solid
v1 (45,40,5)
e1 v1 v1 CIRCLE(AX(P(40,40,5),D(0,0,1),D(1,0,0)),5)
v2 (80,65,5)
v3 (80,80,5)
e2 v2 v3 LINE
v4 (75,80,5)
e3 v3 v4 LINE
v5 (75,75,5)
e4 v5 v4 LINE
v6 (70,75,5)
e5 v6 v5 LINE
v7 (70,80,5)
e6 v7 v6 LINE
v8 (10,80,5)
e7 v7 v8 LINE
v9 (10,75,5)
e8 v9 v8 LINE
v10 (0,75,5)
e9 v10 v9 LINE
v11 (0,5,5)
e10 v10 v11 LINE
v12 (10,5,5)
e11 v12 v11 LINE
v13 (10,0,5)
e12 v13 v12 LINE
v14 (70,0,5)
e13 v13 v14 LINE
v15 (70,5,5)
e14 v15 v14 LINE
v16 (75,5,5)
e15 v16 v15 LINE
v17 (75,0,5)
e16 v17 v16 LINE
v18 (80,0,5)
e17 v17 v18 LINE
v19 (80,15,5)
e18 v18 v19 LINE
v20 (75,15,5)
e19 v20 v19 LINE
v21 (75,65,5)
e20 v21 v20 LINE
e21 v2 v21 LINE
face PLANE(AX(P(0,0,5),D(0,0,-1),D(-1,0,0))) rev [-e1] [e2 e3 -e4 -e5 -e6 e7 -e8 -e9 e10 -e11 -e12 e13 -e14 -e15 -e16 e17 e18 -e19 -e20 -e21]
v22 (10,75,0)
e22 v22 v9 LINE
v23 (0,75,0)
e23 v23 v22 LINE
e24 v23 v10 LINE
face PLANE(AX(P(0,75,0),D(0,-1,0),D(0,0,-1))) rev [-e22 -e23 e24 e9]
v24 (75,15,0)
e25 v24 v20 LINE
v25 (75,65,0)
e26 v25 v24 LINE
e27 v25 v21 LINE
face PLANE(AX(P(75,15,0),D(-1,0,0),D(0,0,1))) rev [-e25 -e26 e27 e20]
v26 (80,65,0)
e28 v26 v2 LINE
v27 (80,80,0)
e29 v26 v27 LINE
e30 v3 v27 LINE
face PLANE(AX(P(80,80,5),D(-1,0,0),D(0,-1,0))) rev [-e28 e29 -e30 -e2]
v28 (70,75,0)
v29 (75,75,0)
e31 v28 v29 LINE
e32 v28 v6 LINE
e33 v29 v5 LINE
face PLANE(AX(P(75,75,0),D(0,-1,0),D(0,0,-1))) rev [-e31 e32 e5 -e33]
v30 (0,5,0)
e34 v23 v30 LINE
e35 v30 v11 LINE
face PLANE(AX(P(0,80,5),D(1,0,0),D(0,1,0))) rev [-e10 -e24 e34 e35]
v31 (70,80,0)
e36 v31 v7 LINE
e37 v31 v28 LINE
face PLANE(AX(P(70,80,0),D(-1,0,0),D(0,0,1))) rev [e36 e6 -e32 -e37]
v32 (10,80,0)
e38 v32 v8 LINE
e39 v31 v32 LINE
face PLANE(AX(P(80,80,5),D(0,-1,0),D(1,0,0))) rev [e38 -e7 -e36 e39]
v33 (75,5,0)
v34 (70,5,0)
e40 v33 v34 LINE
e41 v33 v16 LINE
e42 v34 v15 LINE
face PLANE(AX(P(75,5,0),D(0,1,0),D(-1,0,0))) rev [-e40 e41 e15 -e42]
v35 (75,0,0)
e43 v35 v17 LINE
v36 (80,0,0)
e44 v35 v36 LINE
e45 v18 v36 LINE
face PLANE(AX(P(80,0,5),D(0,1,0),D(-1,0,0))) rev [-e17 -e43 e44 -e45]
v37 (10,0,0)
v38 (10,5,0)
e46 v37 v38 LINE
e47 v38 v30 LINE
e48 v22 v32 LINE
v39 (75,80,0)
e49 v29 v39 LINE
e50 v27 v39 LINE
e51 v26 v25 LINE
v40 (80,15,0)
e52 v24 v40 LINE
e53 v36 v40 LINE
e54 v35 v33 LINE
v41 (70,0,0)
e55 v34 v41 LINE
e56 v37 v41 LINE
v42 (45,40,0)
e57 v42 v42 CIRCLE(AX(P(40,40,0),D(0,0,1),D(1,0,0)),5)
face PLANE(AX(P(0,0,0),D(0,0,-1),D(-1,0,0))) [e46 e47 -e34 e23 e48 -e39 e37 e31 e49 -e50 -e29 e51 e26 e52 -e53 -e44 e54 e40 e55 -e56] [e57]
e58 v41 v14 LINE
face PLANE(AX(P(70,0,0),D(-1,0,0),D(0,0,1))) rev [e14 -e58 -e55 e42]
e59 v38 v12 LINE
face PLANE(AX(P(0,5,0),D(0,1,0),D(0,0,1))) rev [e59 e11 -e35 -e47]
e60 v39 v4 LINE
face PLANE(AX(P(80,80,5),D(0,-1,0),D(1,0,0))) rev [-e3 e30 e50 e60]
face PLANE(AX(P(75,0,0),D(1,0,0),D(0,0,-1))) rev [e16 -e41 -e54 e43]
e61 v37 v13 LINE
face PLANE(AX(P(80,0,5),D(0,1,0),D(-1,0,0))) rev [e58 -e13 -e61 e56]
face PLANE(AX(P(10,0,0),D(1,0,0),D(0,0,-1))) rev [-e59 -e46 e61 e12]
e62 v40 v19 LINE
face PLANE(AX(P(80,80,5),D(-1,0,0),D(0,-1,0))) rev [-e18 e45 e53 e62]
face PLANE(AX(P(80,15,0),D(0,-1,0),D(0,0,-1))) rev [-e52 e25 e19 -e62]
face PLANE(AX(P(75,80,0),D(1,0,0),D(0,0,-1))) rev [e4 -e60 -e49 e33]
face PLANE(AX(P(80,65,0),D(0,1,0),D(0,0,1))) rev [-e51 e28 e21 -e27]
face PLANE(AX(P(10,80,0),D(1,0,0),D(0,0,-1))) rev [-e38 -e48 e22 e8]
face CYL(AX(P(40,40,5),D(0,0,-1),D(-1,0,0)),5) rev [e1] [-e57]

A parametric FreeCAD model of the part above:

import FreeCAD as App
import Part
import Sketcher
Q = App.Units.Quantity

doc = App.newDocument("Part")
body = doc.addObject("PartDesign::Body", "Body")

# Sketch on XY plane
sketch1 = doc.addObject("Sketcher::SketchObject", "Sketch")
body.addObject(sketch1)
sketch1.AttachmentSupport = (doc.XY_Plane, [""])
sketch1.MapMode = "FlatFace"
sketch1.addGeometry([
    Part.LineSegment(App.Vector(0, 80, 0), App.Vector(0, 0, 0)),  # 0
    Part.LineSegment(App.Vector(0, 0, 0), App.Vector(80, 0, 0)),  # 1
    Part.LineSegment(App.Vector(80, 0, 0), App.Vector(80, 80, 0)),  # 2
    Part.LineSegment(App.Vector(80, 80, 0), App.Vector(0, 80, 0)),  # 3
    Part.Circle(App.Vector(40, 40, 0), App.Vector(0, 0, 1), 5),  # 4
], False)
sketch1.addConstraint([
    Sketcher.Constraint("Coincident", 0, 2, 1, 1),
    Sketcher.Constraint("Coincident", 1, 2, 2, 1),
    Sketcher.Constraint("Coincident", 2, 2, 3, 1),
    Sketcher.Constraint("Coincident", 3, 2, 0, 1),
    Sketcher.Constraint("Vertical", 0),
    Sketcher.Constraint("Horizontal", 1),
    Sketcher.Constraint("Vertical", 2),
    Sketcher.Constraint("Horizontal", 3),
    Sketcher.Constraint("Coincident", 0, 2, -1, 1),
    Sketcher.Constraint("Equal", 3, 0),
    Sketcher.Constraint("Diameter", 4, Q("10 mm")),
    Sketcher.Constraint("DistanceX", 1, 1, 1, 2, Q("80 mm")),
    Sketcher.Constraint("DistanceX", -1, 1, 4, 3, Q("40 mm")),
    Sketcher.Constraint("DistanceY", -1, 1, 4, 3, Q("40 mm")),
])
pad1 = doc.addObject("PartDesign::Pad", "Pad")
body.addObject(pad1)
pad1.Profile = sketch1
pad1.Length = 5

# Sketch on XY plane
sketch2 = doc.addObject("Sketcher::SketchObject", "Sketch001")
body.addObject(sketch2)
sketch2.AttachmentSupport = (doc.XY_Plane, [""])
sketch2.MapMode = "FlatFace"
sketch2.AttachmentOffset = App.Placement(App.Vector(0, 0, 5), App.Rotation())
sketch2.addGeometry([
    Part.LineSegment(App.Vector(0, 5, 0), App.Vector(0, 0, 0)),  # 0
    Part.LineSegment(App.Vector(0, 0, 0), App.Vector(10, 0, 0)),  # 1
    Part.LineSegment(App.Vector(10, 0, 0), App.Vector(10, 5, 0)),  # 2
    Part.LineSegment(App.Vector(10, 5, 0), App.Vector(0, 5, 0)),  # 3
    Part.LineSegment(App.Vector(0, 80, 0), App.Vector(0, 75, 0)),  # 4
    Part.LineSegment(App.Vector(0, 75, 0), App.Vector(10, 75, 0)),  # 5
    Part.LineSegment(App.Vector(10, 75, 0), App.Vector(10, 80, 0)),  # 6
    Part.LineSegment(App.Vector(10, 80, 0), App.Vector(0, 80, 0)),  # 7
    Part.LineSegment(App.Vector(75, 65, 0), App.Vector(75, 15, 0)),  # 8
    Part.LineSegment(App.Vector(75, 15, 0), App.Vector(80, 15, 0)),  # 9
    Part.LineSegment(App.Vector(80, 15, 0), App.Vector(80, 65, 0)),  # 10
    Part.LineSegment(App.Vector(80, 65, 0), App.Vector(75, 65, 0)),  # 11
    Part.LineSegment(App.Vector(70, 80, 0), App.Vector(70, 75, 0)),  # 12
    Part.LineSegment(App.Vector(70, 75, 0), App.Vector(75, 75, 0)),  # 13
    Part.LineSegment(App.Vector(75, 75, 0), App.Vector(75, 80, 0)),  # 14
    Part.LineSegment(App.Vector(75, 80, 0), App.Vector(70, 80, 0)),  # 15
    Part.LineSegment(App.Vector(70, 5, 0), App.Vector(70, 0, 0)),  # 16
    Part.LineSegment(App.Vector(70, 0, 0), App.Vector(75, 0, 0)),  # 17
    Part.LineSegment(App.Vector(75, 0, 0), App.Vector(75, 5, 0)),  # 18
    Part.LineSegment(App.Vector(75, 5, 0), App.Vector(70, 5, 0)),  # 19
], False)
sketch2.addConstraint([
    Sketcher.Constraint("Coincident", 0, 2, 1, 1),
    Sketcher.Constraint("Coincident", 1, 2, 2, 1),
    Sketcher.Constraint("Coincident", 2, 2, 3, 1),
    Sketcher.Constraint("Coincident", 3, 2, 0, 1),
    Sketcher.Constraint("Coincident", 4, 2, 5, 1),
    Sketcher.Constraint("Coincident", 5, 2, 6, 1),
    Sketcher.Constraint("Coincident", 6, 2, 7, 1),
    Sketcher.Constraint("Coincident", 7, 2, 4, 1),
    Sketcher.Constraint("Coincident", 8, 2, 9, 1),
    Sketcher.Constraint("Coincident", 9, 2, 10, 1),
    Sketcher.Constraint("Coincident", 10, 2, 11, 1),
    Sketcher.Constraint("Coincident", 11, 2, 8, 1),
    Sketcher.Constraint("Coincident", 12, 2, 13, 1),
    Sketcher.Constraint("Coincident", 13, 2, 14, 1),
    Sketcher.Constraint("Coincident", 14, 2, 15, 1),
    Sketcher.Constraint("Coincident", 15, 2, 12, 1),
    Sketcher.Constraint("Coincident", 16, 2, 17, 1),
    Sketcher.Constraint("Coincident", 17, 2, 18, 1),
    Sketcher.Constraint("Coincident", 18, 2, 19, 1),
    Sketcher.Constraint("Coincident", 19, 2, 16, 1),
    Sketcher.Constraint("Vertical", 0),
    Sketcher.Constraint("Horizontal", 1),
    Sketcher.Constraint("Vertical", 2),
    Sketcher.Constraint("Horizontal", 3),
    Sketcher.Constraint("Vertical", 4),
    Sketcher.Constraint("Horizontal", 5),
    Sketcher.Constraint("Vertical", 6),
    Sketcher.Constraint("Horizontal", 7),
    Sketcher.Constraint("Vertical", 8),
    Sketcher.Constraint("Horizontal", 9),
    Sketcher.Constraint("Vertical", 10),
    Sketcher.Constraint("Horizontal", 11),
    Sketcher.Constraint("Vertical", 12),
    Sketcher.Constraint("Horizontal", 13),
    Sketcher.Constraint("Vertical", 14),
    Sketcher.Constraint("Horizontal", 15),
    Sketcher.Constraint("Vertical", 16),
    Sketcher.Constraint("Horizontal", 17),
    Sketcher.Constraint("Vertical", 18),
    Sketcher.Constraint("Horizontal", 19),
    Sketcher.Constraint("Coincident", 0, 2, -1, 1),
    Sketcher.Constraint("PointOnObject", 4, 2, -2),
    Sketcher.Constraint("PointOnObject", 16, 2, -1),
    Sketcher.Constraint("Horizontal", 5, 2, 12, 2),
    Sketcher.Constraint("Horizontal", 7, 2, 14, 2),
    Sketcher.Constraint("Horizontal", 3, 2, 18, 2),
    Sketcher.Constraint("Vertical", 2, 2, 5, 2),
    Sketcher.Constraint("Vertical", 11, 2, 13, 2),
    Sketcher.Constraint("Vertical", 15, 2, 16, 2),
    Sketcher.Constraint("Vertical", 14, 2, 17, 2),
    Sketcher.Constraint("Equal", 11, 13),
    Sketcher.Constraint("Equal", 19, 0),
    Sketcher.Constraint("Equal", 2, 4),
    Sketcher.Constraint("DistanceX", 1, 1, 1, 2, Q("10 mm")),
    Sketcher.Constraint("DistanceX", 9, 1, 9, 2, Q("5 mm")),
    Sketcher.Constraint("DistanceY", 8, 2, 8, 1, Q("50 mm")),
    Sketcher.Constraint("DistanceY", -1, 1, 4, 2, Q("75 mm")),
    Sketcher.Constraint("DistanceX", -1, 1, 8, 2, Q("75 mm")),
    Sketcher.Constraint("DistanceY", -1, 1, 8, 2, Q("15 mm")),
])
pocket1 = doc.addObject("PartDesign::Pocket", "Pocket")
body.addObject(pocket1)
pocket1.Profile = sketch2
pocket1.Length = 5

doc.recompute()
